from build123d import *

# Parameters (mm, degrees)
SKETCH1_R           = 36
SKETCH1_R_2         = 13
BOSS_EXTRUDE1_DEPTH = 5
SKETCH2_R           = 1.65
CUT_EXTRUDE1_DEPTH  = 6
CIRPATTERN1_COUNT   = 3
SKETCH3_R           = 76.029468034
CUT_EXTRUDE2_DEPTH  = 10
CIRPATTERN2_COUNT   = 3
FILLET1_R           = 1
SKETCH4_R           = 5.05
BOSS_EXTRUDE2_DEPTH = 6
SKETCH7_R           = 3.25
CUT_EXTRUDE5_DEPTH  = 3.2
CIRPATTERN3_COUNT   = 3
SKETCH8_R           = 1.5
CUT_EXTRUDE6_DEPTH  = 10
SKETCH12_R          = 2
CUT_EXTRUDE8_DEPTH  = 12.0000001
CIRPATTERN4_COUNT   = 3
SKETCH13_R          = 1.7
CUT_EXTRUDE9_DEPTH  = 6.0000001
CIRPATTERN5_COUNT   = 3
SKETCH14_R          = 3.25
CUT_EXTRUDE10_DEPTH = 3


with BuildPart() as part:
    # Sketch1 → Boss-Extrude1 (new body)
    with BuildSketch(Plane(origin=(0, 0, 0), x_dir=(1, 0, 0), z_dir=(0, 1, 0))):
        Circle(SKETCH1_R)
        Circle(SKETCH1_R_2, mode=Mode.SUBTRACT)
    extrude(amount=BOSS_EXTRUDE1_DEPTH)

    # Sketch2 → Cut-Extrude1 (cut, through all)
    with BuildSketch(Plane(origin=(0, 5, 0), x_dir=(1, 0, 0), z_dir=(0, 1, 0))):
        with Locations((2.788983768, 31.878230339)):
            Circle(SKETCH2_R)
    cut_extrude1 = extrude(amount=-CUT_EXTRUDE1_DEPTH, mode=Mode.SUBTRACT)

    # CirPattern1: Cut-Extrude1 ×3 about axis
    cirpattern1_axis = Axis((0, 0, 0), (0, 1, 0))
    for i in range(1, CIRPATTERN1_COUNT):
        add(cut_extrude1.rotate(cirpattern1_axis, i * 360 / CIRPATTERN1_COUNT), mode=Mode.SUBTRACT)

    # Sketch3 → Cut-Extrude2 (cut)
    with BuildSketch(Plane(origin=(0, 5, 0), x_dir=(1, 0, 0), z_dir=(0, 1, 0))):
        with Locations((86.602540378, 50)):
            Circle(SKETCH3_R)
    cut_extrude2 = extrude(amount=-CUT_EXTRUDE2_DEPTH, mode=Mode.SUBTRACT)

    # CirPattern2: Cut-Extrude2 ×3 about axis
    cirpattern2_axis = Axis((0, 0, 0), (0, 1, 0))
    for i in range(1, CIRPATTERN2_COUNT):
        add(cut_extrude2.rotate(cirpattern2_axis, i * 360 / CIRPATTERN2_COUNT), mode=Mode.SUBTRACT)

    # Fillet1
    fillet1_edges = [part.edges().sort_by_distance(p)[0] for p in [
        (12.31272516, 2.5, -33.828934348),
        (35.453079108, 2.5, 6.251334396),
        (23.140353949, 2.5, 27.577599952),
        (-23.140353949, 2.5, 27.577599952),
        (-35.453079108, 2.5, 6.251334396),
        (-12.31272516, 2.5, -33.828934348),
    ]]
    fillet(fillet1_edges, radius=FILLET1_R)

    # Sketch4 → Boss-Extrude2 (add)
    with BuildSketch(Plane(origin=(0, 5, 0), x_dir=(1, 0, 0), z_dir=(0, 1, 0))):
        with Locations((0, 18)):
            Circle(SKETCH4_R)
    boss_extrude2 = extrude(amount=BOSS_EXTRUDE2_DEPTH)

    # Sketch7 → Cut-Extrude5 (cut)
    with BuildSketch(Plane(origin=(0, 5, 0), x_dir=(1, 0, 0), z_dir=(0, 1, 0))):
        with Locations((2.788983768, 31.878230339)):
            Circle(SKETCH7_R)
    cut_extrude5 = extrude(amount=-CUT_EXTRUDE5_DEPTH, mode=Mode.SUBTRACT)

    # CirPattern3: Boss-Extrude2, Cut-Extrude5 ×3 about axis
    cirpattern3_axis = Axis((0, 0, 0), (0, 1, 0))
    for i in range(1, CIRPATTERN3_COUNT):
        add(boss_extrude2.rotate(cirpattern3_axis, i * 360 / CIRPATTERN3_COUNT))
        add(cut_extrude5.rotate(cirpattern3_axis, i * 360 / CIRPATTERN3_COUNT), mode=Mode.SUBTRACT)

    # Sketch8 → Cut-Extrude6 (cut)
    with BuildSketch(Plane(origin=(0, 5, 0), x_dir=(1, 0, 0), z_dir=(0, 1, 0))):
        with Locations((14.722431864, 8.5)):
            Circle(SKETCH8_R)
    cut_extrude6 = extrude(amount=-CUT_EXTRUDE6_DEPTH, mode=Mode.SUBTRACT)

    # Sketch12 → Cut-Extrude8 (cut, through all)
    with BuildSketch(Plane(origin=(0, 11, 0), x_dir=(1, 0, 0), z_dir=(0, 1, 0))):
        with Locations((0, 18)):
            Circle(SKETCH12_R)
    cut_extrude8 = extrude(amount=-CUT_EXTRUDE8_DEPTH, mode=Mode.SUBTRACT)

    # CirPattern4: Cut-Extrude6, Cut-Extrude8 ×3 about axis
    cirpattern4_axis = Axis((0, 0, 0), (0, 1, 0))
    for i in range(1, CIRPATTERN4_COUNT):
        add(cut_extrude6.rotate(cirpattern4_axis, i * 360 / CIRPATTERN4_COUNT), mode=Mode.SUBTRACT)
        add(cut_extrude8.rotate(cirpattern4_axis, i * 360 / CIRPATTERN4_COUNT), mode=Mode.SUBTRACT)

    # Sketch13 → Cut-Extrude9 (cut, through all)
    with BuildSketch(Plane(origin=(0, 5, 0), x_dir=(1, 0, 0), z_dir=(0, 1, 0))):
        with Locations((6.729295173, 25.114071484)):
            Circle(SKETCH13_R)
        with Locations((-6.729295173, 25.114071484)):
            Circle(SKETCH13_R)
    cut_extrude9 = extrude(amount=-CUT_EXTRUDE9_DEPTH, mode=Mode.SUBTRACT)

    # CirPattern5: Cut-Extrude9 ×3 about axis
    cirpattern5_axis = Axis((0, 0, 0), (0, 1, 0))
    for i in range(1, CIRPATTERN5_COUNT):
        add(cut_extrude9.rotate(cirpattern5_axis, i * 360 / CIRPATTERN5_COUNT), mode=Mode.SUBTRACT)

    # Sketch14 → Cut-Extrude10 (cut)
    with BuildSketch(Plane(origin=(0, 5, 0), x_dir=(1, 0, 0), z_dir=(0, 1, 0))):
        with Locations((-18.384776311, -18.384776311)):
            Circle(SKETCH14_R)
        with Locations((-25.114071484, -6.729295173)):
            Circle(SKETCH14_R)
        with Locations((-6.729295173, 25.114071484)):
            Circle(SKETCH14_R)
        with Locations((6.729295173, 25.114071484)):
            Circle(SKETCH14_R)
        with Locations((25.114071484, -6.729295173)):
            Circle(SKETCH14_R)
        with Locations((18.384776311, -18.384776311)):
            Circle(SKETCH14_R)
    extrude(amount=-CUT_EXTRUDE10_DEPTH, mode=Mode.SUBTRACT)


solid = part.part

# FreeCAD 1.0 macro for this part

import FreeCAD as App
import Part
import Sketcher

V = App.Vector
Q = App.Units.Quantity


def edges_at(feature, points):
    """Names of the edges that pass closest to the given points."""
    edges = feature.Shape.Edges
    near = lambda p: min(range(len(edges)), key=lambda i: edges[i].distToShape(Part.Vertex(*p))[0])
    return sorted({f"Edge{near(p) + 1}" for p in points})

doc = App.newDocument("Part")
body = doc.addObject("PartDesign::Body", "Body")

# Sketch on XZ plane
sketch1 = body.newObject("Sketcher::SketchObject", "Sketch")
sketch1.AttachmentSupport = (doc.getObject("XZ_Plane"), [""])
sketch1.MapMode = "FlatFace"
sketch1.addGeometry([
    Part.Circle(V(0, 0, 0), V(0, 0, 1), 36),
    Part.Circle(V(0, 0, 0), V(0, 0, 1), 13),
], False)
sketch1.addConstraint([
    Sketcher.Constraint("Coincident", 0, 3, -1, 1),
    Sketcher.Constraint("Coincident", 1, 3, -1, 1),
    Sketcher.Constraint("Diameter", 0, Q("72 mm")),
    Sketcher.Constraint("Diameter", 1, Q("26 mm")),
])
pad1 = body.newObject("PartDesign::Pad", "Pad")
pad1.Profile = sketch1
pad1.Length = 5
pad1.Reversed = True

# Sketch on XZ plane
sketch2 = body.newObject("Sketcher::SketchObject", "Sketch001")
sketch2.AttachmentSupport = (doc.getObject("XZ_Plane"), [""])
sketch2.MapMode = "FlatFace"
sketch2.AttachmentOffset = App.Placement(V(0, 0, -5), App.Rotation())
sketch2.addGeometry(Part.Circle(V(2.8, -31.9, 0), V(0, 0, 1), 1.6), False)
sketch2.addConstraint([
    Sketcher.Constraint("Diameter", 0, Q("3.3 mm")),
    Sketcher.Constraint("DistanceY", 0, 3, -1, 1, Q("31.87823 mm")),
    Sketcher.Constraint("DistanceX", -1, 1, 0, 3, Q("2.788984 mm")),
])
pocket1 = body.newObject("PartDesign::Pocket", "Pocket")
pocket1.Profile = sketch2
pocket1.Type = "ThroughAll"
pocket1.Reversed = True
doc.recompute()

polarpattern = body.newObject("PartDesign::PolarPattern", "PolarPattern")
polarpattern.Originals = [pocket1]
polarpattern.Axis = (doc.getObject("Y_Axis"), [""])
polarpattern.Angle = 360
polarpattern.Occurrences = 3
body.Tip = polarpattern

# Sketch on XZ plane
sketch3 = body.newObject("Sketcher::SketchObject", "Sketch002")
sketch3.AttachmentSupport = (doc.getObject("XZ_Plane"), [""])
sketch3.MapMode = "FlatFace"
sketch3.AttachmentOffset = App.Placement(V(0, 0, -5), App.Rotation())
sketch3.addGeometry(Part.Circle(V(87, -50, 0), V(0, 0, 1), 76), False)
sketch3.addConstraint([
    Sketcher.Constraint("DistanceY", 0, 3, -1, 1, Q("50 mm")),
    Sketcher.Constraint("Diameter", 0, Q("152.058936 mm")),
    Sketcher.Constraint("DistanceX", -1, 1, 0, 3, Q("86.60254 mm")),
])
pocket2 = body.newObject("PartDesign::Pocket", "Pocket001")
pocket2.Profile = sketch3
pocket2.Length = 10
pocket2.Reversed = True
doc.recompute()

polarpattern2 = body.newObject("PartDesign::PolarPattern", "PolarPattern001")
polarpattern2.Originals = [pocket2]
polarpattern2.Axis = (doc.getObject("Y_Axis"), [""])
polarpattern2.Angle = 360
polarpattern2.Occurrences = 3
body.Tip = polarpattern2
doc.recompute()

fillet = body.newObject("PartDesign::Fillet", "Fillet")
fillet.Base = (polarpattern2, edges_at(polarpattern2, [
    (12.313, 2.5, -33.829),
    (35.453, 2.5, 6.251),
    (23.14, 2.5, 27.578),
    (-23.14, 2.5, 27.578),
    (-35.453, 2.5, 6.251),
    (-12.313, 2.5, -33.829),
]))
fillet.Radius = 1

# Sketch on XZ plane
sketch4 = body.newObject("Sketcher::SketchObject", "Sketch003")
sketch4.AttachmentSupport = (doc.getObject("XZ_Plane"), [""])
sketch4.MapMode = "FlatFace"
sketch4.AttachmentOffset = App.Placement(V(0, 0, -5), App.Rotation())
sketch4.addGeometry(Part.Circle(V(0, -18, 0), V(0, 0, 1), 5), False)
sketch4.addConstraint([
    Sketcher.Constraint("PointOnObject", 0, 3, -2),
    Sketcher.Constraint("Diameter", 0, Q("10.1 mm")),
    Sketcher.Constraint("DistanceY", 0, 3, -1, 1, Q("18 mm")),
])
pad2 = body.newObject("PartDesign::Pad", "Pad001")
pad2.Profile = sketch4
pad2.Length = 6
pad2.Reversed = True

# Sketch on XZ plane
sketch5 = body.newObject("Sketcher::SketchObject", "Sketch004")
sketch5.AttachmentSupport = (doc.getObject("XZ_Plane"), [""])
sketch5.MapMode = "FlatFace"
sketch5.AttachmentOffset = App.Placement(V(0, 0, -5), App.Rotation())
sketch5.addGeometry(Part.Circle(V(2.8, -31.9, 0), V(0, 0, 1), 3.2), False)
sketch5.addConstraint([
    Sketcher.Constraint("Diameter", 0, Q("6.5 mm")),
    Sketcher.Constraint("DistanceY", 0, 3, -1, 1, Q("31.87823 mm")),
    Sketcher.Constraint("DistanceX", -1, 1, 0, 3, Q("2.788984 mm")),
])
pocket3 = body.newObject("PartDesign::Pocket", "Pocket002")
pocket3.Profile = sketch5
pocket3.Length = 3.2
pocket3.Reversed = True
doc.recompute()

polarpattern3 = body.newObject("PartDesign::PolarPattern", "PolarPattern002")
polarpattern3.Originals = [pad2, pocket3]
polarpattern3.Axis = (doc.getObject("Y_Axis"), [""])
polarpattern3.Angle = 360
polarpattern3.Occurrences = 3
body.Tip = polarpattern3

# Sketch on XZ plane
sketch6 = body.newObject("Sketcher::SketchObject", "Sketch005")
sketch6.AttachmentSupport = (doc.getObject("XZ_Plane"), [""])
sketch6.MapMode = "FlatFace"
sketch6.AttachmentOffset = App.Placement(V(0, 0, -5), App.Rotation())
sketch6.addGeometry(Part.Circle(V(14.7, -8.5, 0), V(0, 0, 1), 1.5), False)
sketch6.addConstraint([
    Sketcher.Constraint("Diameter", 0, Q("3 mm")),
    Sketcher.Constraint("DistanceY", 0, 3, -1, 1, Q("8.5 mm")),
    Sketcher.Constraint("DistanceX", -1, 1, 0, 3, Q("14.722432 mm")),
])
pocket4 = body.newObject("PartDesign::Pocket", "Pocket003")
pocket4.Profile = sketch6
pocket4.Length = 10
pocket4.Reversed = True

# Sketch on XZ plane
sketch7 = body.newObject("Sketcher::SketchObject", "Sketch006")
sketch7.AttachmentSupport = (doc.getObject("XZ_Plane"), [""])
sketch7.MapMode = "FlatFace"
sketch7.AttachmentOffset = App.Placement(V(0, 0, -11), App.Rotation())
sketch7.addGeometry(Part.Circle(V(0, -18, 0), V(0, 0, 1), 2), False)
sketch7.addConstraint([
    Sketcher.Constraint("PointOnObject", 0, 3, -2),
    Sketcher.Constraint("Diameter", 0, Q("4 mm")),
    Sketcher.Constraint("DistanceY", 0, 3, -1, 1, Q("18 mm")),
])
pocket5 = body.newObject("PartDesign::Pocket", "Pocket004")
pocket5.Profile = sketch7
pocket5.Type = "ThroughAll"
pocket5.Reversed = True
doc.recompute()

polarpattern4 = body.newObject("PartDesign::PolarPattern", "PolarPattern003")
polarpattern4.Originals = [pocket4, pocket5]
polarpattern4.Axis = (doc.getObject("Y_Axis"), [""])
polarpattern4.Angle = 360
polarpattern4.Occurrences = 3
body.Tip = polarpattern4

# Sketch on XZ plane
sketch8 = body.newObject("Sketcher::SketchObject", "Sketch007")
sketch8.AttachmentSupport = (doc.getObject("XZ_Plane"), [""])
sketch8.MapMode = "FlatFace"
sketch8.AttachmentOffset = App.Placement(V(0, 0, -5), App.Rotation())
sketch8.addGeometry([
    Part.Circle(V(6.7, -25.1, 0), V(0, 0, 1), 1.7),
    Part.Circle(V(-6.7, -25.1, 0), V(0, 0, 1), 1.7),
], False)
sketch8.addConstraint([
    Sketcher.Constraint("Equal", 0, 1),
    Sketcher.Constraint("Symmetric", 0, 3, 1, 3, -2),
    Sketcher.Constraint("Diameter", 0, Q("3.4 mm")),
    Sketcher.Constraint("DistanceY", 0, 3, -1, 1, Q("25.114071 mm")),
    Sketcher.Constraint("DistanceX", 1, 3, 0, 3, Q("13.45859 mm")),
])
pocket6 = body.newObject("PartDesign::Pocket", "Pocket005")
pocket6.Profile = sketch8
pocket6.Type = "ThroughAll"
pocket6.Reversed = True
doc.recompute()

polarpattern5 = body.newObject("PartDesign::PolarPattern", "PolarPattern004")
polarpattern5.Originals = [pocket6]
polarpattern5.Axis = (doc.getObject("Y_Axis"), [""])
polarpattern5.Angle = 360
polarpattern5.Occurrences = 3
body.Tip = polarpattern5

# Sketch on XZ plane
sketch9 = body.newObject("Sketcher::SketchObject", "Sketch008")
sketch9.AttachmentSupport = (doc.getObject("XZ_Plane"), [""])
sketch9.MapMode = "FlatFace"
sketch9.AttachmentOffset = App.Placement(V(0, 0, -5), App.Rotation())
sketch9.addGeometry([
    Part.Circle(V(-18.4, 18.4, 0), V(0, 0, 1), 3.2),  # 0
    Part.Circle(V(-25.1, 6.7, 0), V(0, 0, 1), 3.2),  # 1
    Part.Circle(V(-6.7, -25.1, 0), V(0, 0, 1), 3.2),  # 2
    Part.Circle(V(6.7, -25.1, 0), V(0, 0, 1), 3.2),  # 3
    Part.Circle(V(25.1, 6.7, 0), V(0, 0, 1), 3.2),  # 4
    Part.Circle(V(18.4, 18.4, 0), V(0, 0, 1), 3.2),  # 5
], False)
sketch9.addConstraint([
    Sketcher.Constraint("Equal", 0, 1),
    Sketcher.Constraint("Equal", 1, 2),
    Sketcher.Constraint("Equal", 2, 3),
    Sketcher.Constraint("Equal", 3, 4),
    Sketcher.Constraint("Equal", 4, 5),
    Sketcher.Constraint("Symmetric", 2, 3, 3, 3, -2),
    Sketcher.Constraint("Symmetric", 1, 3, 4, 3, -2),
    Sketcher.Constraint("Symmetric", 0, 3, 5, 3, -2),
    Sketcher.Constraint("Diameter", 0, Q("6.5 mm")),
    Sketcher.Constraint("DistanceX", 1, 3, -1, 1, Q("25.114071 mm")),
    Sketcher.Constraint("DistanceY", 2, 3, -1, 1, Q("25.114071 mm")),
    Sketcher.Constraint("DistanceY", 1, 3, 0, 3, Q("11.655481 mm")),
    Sketcher.Constraint("DistanceX", 0, 3, 2, 3, Q("11.655481 mm")),
    Sketcher.Constraint("DistanceX", 2, 3, 3, 3, Q("13.45859 mm")),
    Sketcher.Constraint("DistanceY", -1, 1, 0, 3, Q("18.384776 mm")),
])
pocket7 = body.newObject("PartDesign::Pocket", "Pocket006")
pocket7.Profile = sketch9
pocket7.Length = 3
pocket7.Reversed = True

doc.recompute()
